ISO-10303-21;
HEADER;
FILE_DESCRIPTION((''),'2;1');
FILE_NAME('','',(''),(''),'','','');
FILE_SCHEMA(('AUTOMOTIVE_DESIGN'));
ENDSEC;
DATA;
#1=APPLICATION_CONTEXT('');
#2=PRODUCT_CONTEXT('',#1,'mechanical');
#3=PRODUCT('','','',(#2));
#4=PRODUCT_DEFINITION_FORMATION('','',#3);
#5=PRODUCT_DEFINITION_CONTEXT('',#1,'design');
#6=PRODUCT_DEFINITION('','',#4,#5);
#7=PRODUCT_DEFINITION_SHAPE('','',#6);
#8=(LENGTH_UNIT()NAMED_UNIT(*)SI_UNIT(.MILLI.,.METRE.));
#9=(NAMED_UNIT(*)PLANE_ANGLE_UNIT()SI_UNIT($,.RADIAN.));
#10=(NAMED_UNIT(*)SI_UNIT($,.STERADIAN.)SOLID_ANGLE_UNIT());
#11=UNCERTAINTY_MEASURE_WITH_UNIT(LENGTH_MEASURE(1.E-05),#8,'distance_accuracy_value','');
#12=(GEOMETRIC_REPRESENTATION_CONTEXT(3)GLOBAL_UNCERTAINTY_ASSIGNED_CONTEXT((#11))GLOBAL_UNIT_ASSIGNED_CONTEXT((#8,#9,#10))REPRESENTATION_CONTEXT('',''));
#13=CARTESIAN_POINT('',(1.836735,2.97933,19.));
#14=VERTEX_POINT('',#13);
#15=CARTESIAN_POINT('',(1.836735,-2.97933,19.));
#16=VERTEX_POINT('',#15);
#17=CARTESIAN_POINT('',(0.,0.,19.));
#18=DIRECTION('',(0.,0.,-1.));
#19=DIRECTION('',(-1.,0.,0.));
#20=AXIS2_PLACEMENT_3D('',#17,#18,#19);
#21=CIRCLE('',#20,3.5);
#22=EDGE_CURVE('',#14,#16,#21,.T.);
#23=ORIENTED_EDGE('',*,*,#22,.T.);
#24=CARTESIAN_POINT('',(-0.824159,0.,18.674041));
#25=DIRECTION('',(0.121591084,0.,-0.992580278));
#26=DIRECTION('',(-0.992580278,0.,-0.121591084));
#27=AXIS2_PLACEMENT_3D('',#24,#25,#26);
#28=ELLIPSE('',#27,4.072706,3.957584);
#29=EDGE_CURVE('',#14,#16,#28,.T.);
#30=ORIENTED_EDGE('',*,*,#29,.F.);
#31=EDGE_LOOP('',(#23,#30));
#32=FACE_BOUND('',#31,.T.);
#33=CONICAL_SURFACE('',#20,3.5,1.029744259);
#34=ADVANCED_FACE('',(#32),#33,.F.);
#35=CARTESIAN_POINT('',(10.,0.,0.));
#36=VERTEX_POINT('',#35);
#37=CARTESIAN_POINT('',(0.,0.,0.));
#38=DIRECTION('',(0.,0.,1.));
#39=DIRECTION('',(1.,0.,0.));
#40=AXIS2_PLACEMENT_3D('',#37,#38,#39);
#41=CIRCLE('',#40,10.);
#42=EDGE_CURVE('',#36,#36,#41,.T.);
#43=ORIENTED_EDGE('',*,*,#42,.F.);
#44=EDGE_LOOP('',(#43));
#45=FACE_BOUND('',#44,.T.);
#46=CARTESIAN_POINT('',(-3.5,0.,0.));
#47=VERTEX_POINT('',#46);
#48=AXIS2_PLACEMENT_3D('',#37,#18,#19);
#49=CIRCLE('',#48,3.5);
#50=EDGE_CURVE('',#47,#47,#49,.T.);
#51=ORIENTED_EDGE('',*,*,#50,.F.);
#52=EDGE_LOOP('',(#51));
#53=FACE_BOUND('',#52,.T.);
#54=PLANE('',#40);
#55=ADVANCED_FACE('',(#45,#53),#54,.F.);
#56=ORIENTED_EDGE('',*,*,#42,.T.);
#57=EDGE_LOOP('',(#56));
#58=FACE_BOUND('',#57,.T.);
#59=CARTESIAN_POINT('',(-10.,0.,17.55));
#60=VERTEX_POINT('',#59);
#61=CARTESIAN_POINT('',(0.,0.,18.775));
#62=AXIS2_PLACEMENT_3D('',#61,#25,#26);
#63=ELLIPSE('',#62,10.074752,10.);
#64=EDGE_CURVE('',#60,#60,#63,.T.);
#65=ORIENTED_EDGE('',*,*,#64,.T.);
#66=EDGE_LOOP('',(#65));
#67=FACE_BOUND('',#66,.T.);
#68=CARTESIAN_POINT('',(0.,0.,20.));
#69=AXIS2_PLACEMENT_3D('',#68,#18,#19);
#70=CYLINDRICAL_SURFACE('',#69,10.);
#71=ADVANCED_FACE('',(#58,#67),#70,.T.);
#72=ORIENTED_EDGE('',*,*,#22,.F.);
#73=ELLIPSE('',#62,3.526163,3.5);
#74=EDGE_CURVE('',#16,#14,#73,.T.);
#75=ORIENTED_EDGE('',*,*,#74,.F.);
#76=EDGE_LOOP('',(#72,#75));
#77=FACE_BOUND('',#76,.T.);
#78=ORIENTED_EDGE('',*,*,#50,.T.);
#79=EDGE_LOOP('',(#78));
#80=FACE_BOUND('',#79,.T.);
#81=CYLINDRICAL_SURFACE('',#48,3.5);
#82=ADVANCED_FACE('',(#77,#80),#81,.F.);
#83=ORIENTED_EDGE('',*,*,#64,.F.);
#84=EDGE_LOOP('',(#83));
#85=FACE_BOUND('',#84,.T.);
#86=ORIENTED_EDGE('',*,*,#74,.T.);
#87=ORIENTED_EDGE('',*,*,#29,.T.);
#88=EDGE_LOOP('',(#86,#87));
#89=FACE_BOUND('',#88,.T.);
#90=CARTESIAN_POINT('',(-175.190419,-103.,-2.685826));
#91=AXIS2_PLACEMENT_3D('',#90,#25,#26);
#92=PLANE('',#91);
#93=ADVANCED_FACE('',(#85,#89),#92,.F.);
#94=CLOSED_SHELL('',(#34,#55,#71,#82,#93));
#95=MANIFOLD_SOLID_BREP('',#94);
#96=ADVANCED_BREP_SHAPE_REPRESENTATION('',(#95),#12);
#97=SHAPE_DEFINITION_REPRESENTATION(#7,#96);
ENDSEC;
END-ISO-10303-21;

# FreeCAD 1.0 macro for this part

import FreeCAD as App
import Part
import Sketcher
Q = App.Units.Quantity


def add_polygon(sketch, points):
    """Adds a closed chain of lines whose ends are joined by coincident constraints."""
    first, n = sketch.GeometryCount, len(points)
    for a, b in zip(points, points[1:] + points[:1]):
        sketch.addGeometry(Part.LineSegment(App.Vector(*a, 0), App.Vector(*b, 0)), False)
    for i in range(n):
        sketch.addConstraint(Sketcher.Constraint("Coincident", first + i, 2, first + (i + 1) % n, 1))

doc = App.newDocument("Part")
body = doc.addObject("PartDesign::Body", "Body")

sketch1 = body.newObject("Sketcher::SketchObject", "Sketch")
sketch1.AttachmentSupport = (doc.getObject("XY_Plane"), [""])
sketch1.MapMode = "FlatFace"
sketch1.addGeometry(Part.Circle(App.Vector(0, 0, 0), App.Vector(0, 0, 1), 10), False)
sketch1.addConstraint([
    Sketcher.Constraint("Coincident", 0, 3, -1, 1),
    Sketcher.Constraint("Diameter", 0, Q("20 mm")),
])
pad1 = body.newObject("PartDesign::Pad", "Pad")
pad1.Profile = sketch1
pad1.Length = 20

sketch2 = body.newObject("Sketcher::SketchObject", "Sketch001")
sketch2.AttachmentSupport = (doc.getObject("XZ_Plane"), [""])
sketch2.MapMode = "FlatFace"
add_polygon(sketch2, [(24.809581, 21.814174), (-175.190419, -2.685826), (-175.190419, 173.314174), (24.809581, 148.814174)])
sketch2.addConstraint([
    Sketcher.Constraint("Vertical", 1),
    Sketcher.Constraint("Vertical", 3),
    Sketcher.Constraint("Equal", 0, 2),
    Sketcher.Constraint("DistanceY", 1, 1, 1, 2, Q("176 mm")),
    Sketcher.Constraint("DistanceY", 3, 2, 3, 1, Q("127 mm")),
    Sketcher.Constraint("DistanceX", 1, 2, 2, 2, Q("200 mm")),
    Sketcher.Constraint("DistanceX", 0, 2, -1, 1, Q("175.190419 mm")),
    Sketcher.Constraint("DistanceY", 0, 2, -1, 1, Q("2.685826 mm")),
])
pocket1 = body.newObject("PartDesign::Pocket", "Pocket")
pocket1.Profile = sketch2
pocket1.Length = 206
pocket1.Midplane = True

sketch3 = body.newObject("Sketcher::SketchObject", "Sketch002")
sketch3.AttachmentSupport = (doc.getObject("XY_Plane"), [""])
sketch3.MapMode = "FlatFace"
sketch3.addGeometry(Part.Circle(App.Vector(0, 0, 0), App.Vector(0, 0, 1), 3.5), False)
sketch3.addConstraint([
    Sketcher.Constraint("Coincident", 0, 3, -1, 1),
    Sketcher.Constraint("Diameter", 0, Q("7 mm")),
])
doc.recompute()
hole = body.newObject("PartDesign::Hole", "Hole")
hole.Profile = sketch3
hole.ThreadType = "None"
hole.Diameter = 7
hole.DepthType = "Dimension"
hole.Depth = 19
hole.DrillPoint = "Angled"
hole.DrillPointAngle = 118
hole.Reversed = True

doc.recompute()
